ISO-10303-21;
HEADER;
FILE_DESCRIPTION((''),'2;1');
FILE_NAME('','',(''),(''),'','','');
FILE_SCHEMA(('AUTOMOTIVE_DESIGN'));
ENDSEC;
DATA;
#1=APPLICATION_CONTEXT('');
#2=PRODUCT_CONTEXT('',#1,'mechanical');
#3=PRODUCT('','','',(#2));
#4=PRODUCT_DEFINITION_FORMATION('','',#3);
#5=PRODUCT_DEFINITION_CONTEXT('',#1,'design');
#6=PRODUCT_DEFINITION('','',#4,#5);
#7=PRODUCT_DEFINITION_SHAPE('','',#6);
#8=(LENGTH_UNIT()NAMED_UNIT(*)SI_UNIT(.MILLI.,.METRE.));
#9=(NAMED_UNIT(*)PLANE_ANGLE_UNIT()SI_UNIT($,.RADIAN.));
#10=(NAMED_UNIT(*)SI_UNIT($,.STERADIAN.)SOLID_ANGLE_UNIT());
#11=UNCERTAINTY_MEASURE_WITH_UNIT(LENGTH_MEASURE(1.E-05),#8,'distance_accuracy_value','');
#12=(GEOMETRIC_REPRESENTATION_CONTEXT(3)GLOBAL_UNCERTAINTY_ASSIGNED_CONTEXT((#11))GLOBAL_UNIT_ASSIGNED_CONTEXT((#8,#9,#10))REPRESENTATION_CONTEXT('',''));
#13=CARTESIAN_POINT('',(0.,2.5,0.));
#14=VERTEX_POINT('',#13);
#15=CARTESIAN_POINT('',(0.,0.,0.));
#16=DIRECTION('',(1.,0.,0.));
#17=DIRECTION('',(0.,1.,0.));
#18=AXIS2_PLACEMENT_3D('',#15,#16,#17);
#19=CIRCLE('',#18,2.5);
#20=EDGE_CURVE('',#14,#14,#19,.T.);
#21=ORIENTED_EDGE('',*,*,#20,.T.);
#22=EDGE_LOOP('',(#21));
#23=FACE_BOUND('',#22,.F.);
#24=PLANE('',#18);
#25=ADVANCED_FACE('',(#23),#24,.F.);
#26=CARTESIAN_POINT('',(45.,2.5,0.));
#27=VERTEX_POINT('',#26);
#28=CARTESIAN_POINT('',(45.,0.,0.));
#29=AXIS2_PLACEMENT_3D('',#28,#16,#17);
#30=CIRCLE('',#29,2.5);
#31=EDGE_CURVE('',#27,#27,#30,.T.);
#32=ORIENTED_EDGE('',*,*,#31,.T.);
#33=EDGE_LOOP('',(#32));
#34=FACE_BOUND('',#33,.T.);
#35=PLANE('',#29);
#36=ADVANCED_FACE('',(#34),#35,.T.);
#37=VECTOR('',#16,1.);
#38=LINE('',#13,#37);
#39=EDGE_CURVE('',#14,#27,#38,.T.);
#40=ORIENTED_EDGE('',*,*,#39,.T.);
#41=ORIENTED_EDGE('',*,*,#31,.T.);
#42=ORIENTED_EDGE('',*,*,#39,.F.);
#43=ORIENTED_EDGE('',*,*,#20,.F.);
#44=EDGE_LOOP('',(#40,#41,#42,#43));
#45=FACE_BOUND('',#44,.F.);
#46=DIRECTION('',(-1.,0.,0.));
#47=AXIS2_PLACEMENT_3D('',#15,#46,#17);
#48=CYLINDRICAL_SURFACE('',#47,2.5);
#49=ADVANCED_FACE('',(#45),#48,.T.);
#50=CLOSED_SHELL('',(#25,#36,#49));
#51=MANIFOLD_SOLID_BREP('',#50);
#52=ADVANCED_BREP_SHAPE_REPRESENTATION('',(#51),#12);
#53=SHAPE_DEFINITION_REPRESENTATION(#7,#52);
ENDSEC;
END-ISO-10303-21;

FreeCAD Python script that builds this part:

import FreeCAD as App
import Part
import Sketcher

doc = App.newDocument("Part")
params = doc.addObject("Spreadsheet::Sheet", "Params")
for row, (alias, value) in enumerate([
    ("sketch1_diameter", "5 mm"),
    ("pad1_length", "45 mm"),
], start=1):
    params.set(f"A{row}", alias)
    params.set(f"B{row}", "=" + value)
    params.setAlias(f"B{row}", alias)

body = doc.addObject("PartDesign::Body", "Body")

sketch1 = body.newObject("Sketcher::SketchObject", "Sketch")
sketch1.AttachmentSupport = (doc.getObject("YZ_Plane"), [""])
sketch1.MapMode = "FlatFace"
sketch1.addGeometry(Part.Circle(App.Vector(0, 0, 0), App.Vector(0, 0, 1), 2.5), False)
sketch1.addConstraint([
    Sketcher.Constraint("Coincident", 0, 3, -1, 1),
    Sketcher.Constraint("Diameter", 0, 5.0),
])
sketch1.setExpression("Constraints[1]", "Params.sketch1_diameter")
pad1 = body.newObject("PartDesign::Pad", "Pad")
pad1.Profile = sketch1
pad1.setExpression("Length", "Params.pad1_length")

doc.recompute()
